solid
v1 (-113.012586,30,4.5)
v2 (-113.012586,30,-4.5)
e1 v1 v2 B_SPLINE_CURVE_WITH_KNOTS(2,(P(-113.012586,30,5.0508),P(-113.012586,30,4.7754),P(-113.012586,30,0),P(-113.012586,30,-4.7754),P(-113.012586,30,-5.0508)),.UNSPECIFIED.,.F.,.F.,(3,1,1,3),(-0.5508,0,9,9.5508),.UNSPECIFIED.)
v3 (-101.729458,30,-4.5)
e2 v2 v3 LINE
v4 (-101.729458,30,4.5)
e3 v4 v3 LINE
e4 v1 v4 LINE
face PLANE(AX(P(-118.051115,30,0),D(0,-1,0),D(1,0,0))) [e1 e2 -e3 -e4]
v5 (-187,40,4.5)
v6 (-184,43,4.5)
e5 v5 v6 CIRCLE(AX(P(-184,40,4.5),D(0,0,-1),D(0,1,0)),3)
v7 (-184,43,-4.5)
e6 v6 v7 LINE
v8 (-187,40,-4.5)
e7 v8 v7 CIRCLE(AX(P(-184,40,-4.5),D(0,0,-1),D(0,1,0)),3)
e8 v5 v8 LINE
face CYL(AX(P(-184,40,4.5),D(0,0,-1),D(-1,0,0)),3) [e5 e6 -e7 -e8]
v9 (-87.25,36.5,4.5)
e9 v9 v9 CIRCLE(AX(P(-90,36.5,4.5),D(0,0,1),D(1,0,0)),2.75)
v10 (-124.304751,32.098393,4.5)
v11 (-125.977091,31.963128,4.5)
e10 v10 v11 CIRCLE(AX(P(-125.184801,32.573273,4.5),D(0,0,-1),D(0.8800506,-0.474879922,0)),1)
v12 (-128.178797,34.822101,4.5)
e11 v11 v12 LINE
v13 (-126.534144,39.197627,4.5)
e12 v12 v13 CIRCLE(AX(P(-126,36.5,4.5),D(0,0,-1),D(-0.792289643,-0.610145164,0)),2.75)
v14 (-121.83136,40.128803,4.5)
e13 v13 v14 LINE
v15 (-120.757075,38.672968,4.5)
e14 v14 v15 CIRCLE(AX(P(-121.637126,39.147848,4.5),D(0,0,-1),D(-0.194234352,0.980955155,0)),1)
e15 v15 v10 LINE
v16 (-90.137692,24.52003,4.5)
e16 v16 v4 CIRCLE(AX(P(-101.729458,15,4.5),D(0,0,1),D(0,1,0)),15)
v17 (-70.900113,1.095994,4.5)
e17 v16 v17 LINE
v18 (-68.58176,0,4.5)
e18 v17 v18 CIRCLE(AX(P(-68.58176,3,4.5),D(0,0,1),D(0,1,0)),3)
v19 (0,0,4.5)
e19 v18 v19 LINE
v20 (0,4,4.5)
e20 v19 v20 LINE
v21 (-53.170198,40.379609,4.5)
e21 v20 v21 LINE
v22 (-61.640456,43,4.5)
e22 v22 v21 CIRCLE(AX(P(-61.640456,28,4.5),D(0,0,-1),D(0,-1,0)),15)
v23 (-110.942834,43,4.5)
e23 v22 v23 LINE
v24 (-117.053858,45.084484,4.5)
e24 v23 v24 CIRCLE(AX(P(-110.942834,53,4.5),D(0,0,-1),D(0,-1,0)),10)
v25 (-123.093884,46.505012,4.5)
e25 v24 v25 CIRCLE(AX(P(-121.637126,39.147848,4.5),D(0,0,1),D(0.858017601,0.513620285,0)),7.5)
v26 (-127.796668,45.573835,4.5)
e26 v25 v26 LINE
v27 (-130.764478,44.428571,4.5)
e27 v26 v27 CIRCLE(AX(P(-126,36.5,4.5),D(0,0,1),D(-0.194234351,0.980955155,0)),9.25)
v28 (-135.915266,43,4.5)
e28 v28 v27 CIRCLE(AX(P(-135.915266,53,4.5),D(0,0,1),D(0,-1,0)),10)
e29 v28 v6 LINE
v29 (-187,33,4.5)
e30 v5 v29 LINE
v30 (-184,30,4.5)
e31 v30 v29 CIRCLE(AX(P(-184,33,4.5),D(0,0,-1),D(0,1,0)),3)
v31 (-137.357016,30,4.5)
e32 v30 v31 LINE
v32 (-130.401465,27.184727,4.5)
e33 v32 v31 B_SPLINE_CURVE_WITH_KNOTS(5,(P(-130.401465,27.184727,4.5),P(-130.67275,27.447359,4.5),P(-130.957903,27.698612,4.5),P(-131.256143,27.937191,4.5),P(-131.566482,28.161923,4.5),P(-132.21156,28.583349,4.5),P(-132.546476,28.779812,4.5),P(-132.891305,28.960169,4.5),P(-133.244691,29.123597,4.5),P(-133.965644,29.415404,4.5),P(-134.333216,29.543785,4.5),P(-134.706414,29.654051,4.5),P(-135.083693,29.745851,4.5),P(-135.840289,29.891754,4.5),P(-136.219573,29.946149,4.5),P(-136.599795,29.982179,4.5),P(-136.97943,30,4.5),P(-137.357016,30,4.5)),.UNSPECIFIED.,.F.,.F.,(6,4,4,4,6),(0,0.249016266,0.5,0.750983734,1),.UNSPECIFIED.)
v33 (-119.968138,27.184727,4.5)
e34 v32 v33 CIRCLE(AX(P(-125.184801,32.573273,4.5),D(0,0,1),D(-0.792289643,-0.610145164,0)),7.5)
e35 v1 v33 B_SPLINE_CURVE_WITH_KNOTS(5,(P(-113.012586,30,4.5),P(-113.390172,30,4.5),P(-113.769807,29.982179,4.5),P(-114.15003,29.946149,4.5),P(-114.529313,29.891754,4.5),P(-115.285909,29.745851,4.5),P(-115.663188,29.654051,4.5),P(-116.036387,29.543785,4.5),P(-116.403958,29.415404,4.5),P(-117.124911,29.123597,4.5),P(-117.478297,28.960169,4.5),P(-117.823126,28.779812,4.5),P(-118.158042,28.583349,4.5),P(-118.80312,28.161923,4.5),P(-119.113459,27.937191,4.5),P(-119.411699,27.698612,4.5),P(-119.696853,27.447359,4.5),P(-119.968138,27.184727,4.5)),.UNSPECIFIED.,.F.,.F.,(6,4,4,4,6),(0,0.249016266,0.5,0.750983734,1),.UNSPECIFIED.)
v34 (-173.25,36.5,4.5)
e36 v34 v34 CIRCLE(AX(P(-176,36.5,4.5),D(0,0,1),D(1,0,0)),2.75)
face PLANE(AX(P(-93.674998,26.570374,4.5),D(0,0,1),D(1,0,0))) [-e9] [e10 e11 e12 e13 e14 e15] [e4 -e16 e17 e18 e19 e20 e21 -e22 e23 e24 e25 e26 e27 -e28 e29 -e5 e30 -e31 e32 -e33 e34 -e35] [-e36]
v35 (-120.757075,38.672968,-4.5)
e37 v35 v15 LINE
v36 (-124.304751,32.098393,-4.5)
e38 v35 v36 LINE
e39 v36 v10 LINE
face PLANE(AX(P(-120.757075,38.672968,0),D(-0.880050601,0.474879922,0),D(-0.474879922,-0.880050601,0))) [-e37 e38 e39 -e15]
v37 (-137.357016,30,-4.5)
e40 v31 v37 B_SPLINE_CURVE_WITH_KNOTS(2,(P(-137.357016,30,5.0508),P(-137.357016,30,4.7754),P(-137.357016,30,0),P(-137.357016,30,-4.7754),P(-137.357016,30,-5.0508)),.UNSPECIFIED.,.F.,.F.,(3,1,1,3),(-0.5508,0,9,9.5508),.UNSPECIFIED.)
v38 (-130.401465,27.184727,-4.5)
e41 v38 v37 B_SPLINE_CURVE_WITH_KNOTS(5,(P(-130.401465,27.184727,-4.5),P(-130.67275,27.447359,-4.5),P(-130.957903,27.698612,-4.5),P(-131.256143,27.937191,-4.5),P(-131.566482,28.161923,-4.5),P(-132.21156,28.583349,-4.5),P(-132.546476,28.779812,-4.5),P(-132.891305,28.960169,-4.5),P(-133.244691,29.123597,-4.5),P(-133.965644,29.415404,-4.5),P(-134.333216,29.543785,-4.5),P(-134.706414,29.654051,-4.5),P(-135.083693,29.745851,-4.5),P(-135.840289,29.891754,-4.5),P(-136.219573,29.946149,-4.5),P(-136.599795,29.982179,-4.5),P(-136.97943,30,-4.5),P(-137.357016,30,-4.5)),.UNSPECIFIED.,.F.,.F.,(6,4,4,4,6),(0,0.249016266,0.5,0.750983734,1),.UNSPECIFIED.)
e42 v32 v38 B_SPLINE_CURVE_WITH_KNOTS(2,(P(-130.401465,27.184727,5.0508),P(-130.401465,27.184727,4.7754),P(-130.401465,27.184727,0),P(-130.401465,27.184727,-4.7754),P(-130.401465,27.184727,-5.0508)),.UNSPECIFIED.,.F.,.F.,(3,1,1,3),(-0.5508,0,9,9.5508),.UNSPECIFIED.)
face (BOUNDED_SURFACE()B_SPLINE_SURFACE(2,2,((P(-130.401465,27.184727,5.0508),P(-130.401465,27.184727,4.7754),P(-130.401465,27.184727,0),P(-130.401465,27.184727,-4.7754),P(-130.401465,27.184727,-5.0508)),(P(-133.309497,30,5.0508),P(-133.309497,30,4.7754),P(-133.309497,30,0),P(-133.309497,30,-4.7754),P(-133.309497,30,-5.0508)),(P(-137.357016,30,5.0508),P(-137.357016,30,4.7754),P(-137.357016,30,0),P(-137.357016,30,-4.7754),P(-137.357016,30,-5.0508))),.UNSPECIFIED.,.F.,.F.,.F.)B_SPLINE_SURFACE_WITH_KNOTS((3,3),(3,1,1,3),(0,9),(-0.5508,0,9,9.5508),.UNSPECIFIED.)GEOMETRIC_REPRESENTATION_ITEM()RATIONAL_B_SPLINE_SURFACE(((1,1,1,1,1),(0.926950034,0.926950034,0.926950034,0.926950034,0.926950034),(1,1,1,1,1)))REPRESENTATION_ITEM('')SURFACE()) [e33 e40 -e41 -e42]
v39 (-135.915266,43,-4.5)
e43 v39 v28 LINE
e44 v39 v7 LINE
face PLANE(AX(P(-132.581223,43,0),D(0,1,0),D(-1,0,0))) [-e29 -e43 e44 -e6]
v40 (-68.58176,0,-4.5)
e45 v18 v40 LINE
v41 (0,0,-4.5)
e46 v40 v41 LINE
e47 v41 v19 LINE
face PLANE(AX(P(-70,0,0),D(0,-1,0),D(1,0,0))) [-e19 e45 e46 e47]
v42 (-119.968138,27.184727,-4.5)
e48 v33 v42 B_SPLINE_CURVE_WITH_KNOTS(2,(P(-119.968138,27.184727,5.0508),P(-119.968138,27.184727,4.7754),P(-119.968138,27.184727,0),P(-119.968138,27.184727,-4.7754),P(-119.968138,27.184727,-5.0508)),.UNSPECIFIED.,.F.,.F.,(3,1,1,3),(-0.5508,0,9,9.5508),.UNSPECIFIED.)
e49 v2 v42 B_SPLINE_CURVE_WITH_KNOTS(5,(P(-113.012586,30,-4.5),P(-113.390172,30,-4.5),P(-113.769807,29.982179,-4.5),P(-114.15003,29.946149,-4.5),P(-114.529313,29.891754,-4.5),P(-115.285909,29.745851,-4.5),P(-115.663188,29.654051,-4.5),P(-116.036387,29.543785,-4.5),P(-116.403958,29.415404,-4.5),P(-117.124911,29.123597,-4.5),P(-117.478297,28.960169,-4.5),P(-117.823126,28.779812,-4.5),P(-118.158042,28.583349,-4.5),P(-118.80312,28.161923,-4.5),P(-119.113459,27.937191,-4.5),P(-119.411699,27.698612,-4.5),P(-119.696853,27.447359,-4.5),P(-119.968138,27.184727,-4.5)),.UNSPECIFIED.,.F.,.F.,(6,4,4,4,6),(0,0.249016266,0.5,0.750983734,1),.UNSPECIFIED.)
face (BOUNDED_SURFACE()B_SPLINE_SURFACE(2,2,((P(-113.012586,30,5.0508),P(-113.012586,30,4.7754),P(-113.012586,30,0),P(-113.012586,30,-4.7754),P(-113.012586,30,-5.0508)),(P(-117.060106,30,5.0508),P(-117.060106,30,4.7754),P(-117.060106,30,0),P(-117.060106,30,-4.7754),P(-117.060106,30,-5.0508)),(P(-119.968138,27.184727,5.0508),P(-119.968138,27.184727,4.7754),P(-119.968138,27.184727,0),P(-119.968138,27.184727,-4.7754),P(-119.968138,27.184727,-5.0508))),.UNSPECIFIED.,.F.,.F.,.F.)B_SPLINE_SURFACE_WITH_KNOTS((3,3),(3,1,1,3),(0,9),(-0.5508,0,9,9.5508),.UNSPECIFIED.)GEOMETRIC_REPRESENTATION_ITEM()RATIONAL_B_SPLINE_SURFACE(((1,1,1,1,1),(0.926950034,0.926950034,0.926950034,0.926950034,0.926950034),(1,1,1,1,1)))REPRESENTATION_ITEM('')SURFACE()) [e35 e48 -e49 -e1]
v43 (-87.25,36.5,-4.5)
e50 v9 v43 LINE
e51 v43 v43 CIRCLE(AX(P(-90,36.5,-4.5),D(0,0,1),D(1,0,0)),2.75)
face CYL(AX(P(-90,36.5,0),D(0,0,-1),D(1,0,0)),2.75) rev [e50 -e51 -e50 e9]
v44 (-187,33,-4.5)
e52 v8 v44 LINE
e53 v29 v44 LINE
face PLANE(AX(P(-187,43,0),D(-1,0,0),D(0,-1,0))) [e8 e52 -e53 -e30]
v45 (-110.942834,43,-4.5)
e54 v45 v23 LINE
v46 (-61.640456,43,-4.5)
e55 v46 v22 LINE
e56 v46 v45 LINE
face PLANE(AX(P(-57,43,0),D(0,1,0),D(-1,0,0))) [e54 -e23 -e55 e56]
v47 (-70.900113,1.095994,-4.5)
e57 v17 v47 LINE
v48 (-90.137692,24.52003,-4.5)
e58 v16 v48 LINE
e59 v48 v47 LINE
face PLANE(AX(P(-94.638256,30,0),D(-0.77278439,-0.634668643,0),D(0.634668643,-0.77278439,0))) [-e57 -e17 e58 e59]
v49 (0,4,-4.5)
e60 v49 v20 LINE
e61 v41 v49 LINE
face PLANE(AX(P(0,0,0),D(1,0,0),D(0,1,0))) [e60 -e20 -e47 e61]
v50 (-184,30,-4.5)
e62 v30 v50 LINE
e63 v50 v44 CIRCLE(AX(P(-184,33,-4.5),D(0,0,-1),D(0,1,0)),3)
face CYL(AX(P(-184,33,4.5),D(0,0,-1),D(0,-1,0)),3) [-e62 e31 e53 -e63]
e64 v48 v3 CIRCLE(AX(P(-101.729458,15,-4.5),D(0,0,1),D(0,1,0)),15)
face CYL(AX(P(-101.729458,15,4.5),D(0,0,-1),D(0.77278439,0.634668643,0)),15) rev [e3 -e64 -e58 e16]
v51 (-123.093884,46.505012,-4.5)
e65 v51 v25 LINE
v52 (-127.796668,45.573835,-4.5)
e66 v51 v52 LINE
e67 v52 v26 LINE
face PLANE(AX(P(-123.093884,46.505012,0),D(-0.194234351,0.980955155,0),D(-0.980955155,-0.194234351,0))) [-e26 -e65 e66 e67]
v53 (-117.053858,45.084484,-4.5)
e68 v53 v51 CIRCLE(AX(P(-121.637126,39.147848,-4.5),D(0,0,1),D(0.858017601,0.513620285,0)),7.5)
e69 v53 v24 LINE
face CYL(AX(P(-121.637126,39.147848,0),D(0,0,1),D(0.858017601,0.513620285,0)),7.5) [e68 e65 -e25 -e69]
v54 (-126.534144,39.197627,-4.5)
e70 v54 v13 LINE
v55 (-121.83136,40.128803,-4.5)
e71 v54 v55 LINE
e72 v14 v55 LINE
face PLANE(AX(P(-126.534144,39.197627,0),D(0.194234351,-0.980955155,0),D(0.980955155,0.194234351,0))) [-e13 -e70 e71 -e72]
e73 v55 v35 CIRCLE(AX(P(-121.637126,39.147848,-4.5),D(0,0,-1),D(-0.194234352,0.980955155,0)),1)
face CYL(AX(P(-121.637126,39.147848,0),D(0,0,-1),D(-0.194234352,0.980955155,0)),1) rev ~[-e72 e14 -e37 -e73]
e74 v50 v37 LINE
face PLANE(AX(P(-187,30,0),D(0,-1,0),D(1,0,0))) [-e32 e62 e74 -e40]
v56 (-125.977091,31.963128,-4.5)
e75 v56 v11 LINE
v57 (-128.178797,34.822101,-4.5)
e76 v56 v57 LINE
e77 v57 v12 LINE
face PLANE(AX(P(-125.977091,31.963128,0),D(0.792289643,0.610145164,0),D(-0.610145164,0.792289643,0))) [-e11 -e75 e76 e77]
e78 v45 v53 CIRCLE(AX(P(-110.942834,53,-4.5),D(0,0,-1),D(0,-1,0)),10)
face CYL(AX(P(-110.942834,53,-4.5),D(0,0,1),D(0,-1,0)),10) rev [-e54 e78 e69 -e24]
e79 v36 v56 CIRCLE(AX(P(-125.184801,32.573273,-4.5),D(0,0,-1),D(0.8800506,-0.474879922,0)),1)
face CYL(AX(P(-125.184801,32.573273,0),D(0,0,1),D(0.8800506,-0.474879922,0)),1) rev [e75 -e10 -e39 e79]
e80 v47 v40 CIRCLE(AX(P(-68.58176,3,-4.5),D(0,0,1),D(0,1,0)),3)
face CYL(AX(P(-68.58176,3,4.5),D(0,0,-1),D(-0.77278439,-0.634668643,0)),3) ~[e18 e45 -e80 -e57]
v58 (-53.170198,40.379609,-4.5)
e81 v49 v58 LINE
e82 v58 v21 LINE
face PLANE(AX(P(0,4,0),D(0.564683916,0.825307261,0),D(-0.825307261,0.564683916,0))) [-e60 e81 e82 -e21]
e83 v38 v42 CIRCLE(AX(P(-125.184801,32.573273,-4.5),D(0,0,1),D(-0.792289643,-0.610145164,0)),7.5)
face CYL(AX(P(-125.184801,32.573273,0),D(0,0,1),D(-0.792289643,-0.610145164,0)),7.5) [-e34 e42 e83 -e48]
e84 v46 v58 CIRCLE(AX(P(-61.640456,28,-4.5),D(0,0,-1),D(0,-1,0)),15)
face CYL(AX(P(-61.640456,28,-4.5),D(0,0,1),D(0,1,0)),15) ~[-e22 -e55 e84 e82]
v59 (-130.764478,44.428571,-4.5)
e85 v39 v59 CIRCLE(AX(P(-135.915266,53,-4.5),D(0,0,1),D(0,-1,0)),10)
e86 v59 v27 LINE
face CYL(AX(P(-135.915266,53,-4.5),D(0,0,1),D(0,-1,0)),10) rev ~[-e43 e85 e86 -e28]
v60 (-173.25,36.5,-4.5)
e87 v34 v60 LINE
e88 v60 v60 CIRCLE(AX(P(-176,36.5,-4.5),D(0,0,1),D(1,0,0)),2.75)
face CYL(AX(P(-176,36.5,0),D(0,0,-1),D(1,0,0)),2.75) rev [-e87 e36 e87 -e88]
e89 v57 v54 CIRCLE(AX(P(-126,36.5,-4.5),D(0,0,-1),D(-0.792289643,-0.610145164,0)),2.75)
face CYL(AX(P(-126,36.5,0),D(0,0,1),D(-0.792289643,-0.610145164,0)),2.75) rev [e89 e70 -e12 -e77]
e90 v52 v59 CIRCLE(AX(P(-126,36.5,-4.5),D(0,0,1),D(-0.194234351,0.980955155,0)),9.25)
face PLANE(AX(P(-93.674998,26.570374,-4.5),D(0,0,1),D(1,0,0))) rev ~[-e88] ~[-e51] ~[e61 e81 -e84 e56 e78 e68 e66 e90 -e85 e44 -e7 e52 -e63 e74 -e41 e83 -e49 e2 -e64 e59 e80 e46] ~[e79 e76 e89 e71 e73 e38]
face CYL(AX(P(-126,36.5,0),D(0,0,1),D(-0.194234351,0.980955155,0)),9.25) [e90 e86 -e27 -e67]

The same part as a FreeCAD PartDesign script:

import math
import FreeCAD as App
import Part
import Sketcher
Q = App.Units.Quantity


def edges_at(feature, points):
    """Names of the edges that pass closest to the given points."""
    edges = feature.Shape.Edges
    near = lambda p: min(range(len(edges)), key=lambda i: edges[i].distToShape(Part.Vertex(*p))[0])
    return sorted({f"Edge{near(p) + 1}" for p in points})

doc = App.newDocument("Part")
params = doc.addObject("Spreadsheet::Sheet", "Params")
for row, (alias, value) in enumerate([
    ("sketch1_radius", "1 mm"),
    ("sketch1_diameter", "5.5 mm"),
    ("sketch1_radius2", "7.5 mm"),
    ("sketch1_width", "70 mm"),
    ("sketch1_height", "4 mm"),
    ("pad1_length", "9 mm"),
    ("fillet_radius", "15 mm"),
    ("fillet2_radius", "10 mm"),
    ("fillet3_radius", "3 mm"),
], start=1):
    params.set(f"A{row}", alias)
    params.set(f"B{row}", "=" + value)
    params.setAlias(f"B{row}", alias)

body = doc.addObject("PartDesign::Body", "Body")

# Sketch on XY plane
sketch1 = body.newObject("Sketcher::SketchObject", "Sketch")
sketch1.AttachmentSupport = (doc.getObject("XY_Plane"), [""])
sketch1.MapMode = "FlatFace"
sketch1.addGeometry(Part.LineSegment(App.Vector(-70, 0, 0), App.Vector(0, 0, 0)), False)
sketch1.addGeometry(Part.LineSegment(App.Vector(0, 0, 0), App.Vector(0, 4, 0)), False)
sketch1.addGeometry(Part.LineSegment(App.Vector(0, 4, 0), App.Vector(-57, 43, 0)), False)
sketch1.addGeometry(Part.LineSegment(App.Vector(-57, 43, 0), App.Vector(-115.2, 43, 0)), False)
sketch1.addGeometry(Part.ArcOfCircle(Part.Circle(App.Vector(-121.6, 39.1, 0), App.Vector(0, 0, 1), 7.5), math.radians(31), math.radians(101)), False)
sketch1.addGeometry(Part.LineSegment(App.Vector(-123.1, 46.5, 0), App.Vector(-127.8, 45.6, 0)), False)
sketch1.addGeometry(Part.ArcOfCircle(Part.Circle(App.Vector(-126, 36.5, 0), App.Vector(0, 0, 1), 9.3), math.radians(101), math.radians(135)), False)
sketch1.addGeometry(Part.LineSegment(App.Vector(-132.6, 43, 0), App.Vector(-187, 43, 0)), False)
sketch1.addGeometry(Part.LineSegment(App.Vector(-187, 43, 0), App.Vector(-187, 30, 0)), False)
sketch1.addGeometry(Part.LineSegment(App.Vector(-187, 30, 0), App.Vector(-132.7, 30, 0)), False)
sketch1.addGeometry(Part.LineSegment(App.Vector(-132.7, 30, 0), App.Vector(-131.1, 28, 0)), False)
sketch1.addGeometry(Part.ArcOfCircle(Part.Circle(App.Vector(-125.2, 32.6, 0), App.Vector(0, 0, 1), 7.5), math.radians(-142), math.radians(-28)), False)
sketch1.addGeometry(Part.LineSegment(App.Vector(-118.6, 29, 0), App.Vector(-118.1, 30, 0)), False)
sketch1.addGeometry(Part.LineSegment(App.Vector(-118.1, 30, 0), App.Vector(-94.6, 30, 0)), False)
sketch1.addGeometry(Part.LineSegment(App.Vector(-94.6, 30, 0), App.Vector(-70, 0, 0)), False)
sketch1.addGeometry(Part.Circle(App.Vector(-176, 36.5, 0), App.Vector(0, 0, 1), 2.8), False)
sketch1.addGeometry(Part.LineSegment(App.Vector(-126, 32, 0), App.Vector(-128.2, 34.8, 0)), False)
sketch1.addGeometry(Part.ArcOfCircle(Part.Circle(App.Vector(-126, 36.5, 0), App.Vector(0, 0, 1), 2.8), math.radians(101), math.radians(218)), False)
sketch1.addGeometry(Part.LineSegment(App.Vector(-126.5, 39.2, 0), App.Vector(-121.8, 40.1, 0)), False)
sketch1.addGeometry(Part.ArcOfCircle(Part.Circle(App.Vector(-121.6, 39.1, 0), App.Vector(0, 0, 1), 1), math.radians(-28), math.radians(101)), False)
sketch1.addGeometry(Part.LineSegment(App.Vector(-120.8, 38.7, 0), App.Vector(-124.3, 32.1, 0)), False)
sketch1.addGeometry(Part.ArcOfCircle(Part.Circle(App.Vector(-125.2, 32.6, 0), App.Vector(0, 0, 1), 1), math.radians(-142), math.radians(-28)), False)
sketch1.addGeometry(Part.Circle(App.Vector(-90, 36.5, 0), App.Vector(0, 0, 1), 2.8), False)
sketch1.addConstraint(Sketcher.Constraint("Coincident", 0, 2, 1, 1))
sketch1.addConstraint(Sketcher.Constraint("Coincident", 1, 2, 2, 1))
sketch1.addConstraint(Sketcher.Constraint("Coincident", 2, 2, 3, 1))
sketch1.addConstraint(Sketcher.Constraint("Coincident", 3, 2, 4, 1))
sketch1.addConstraint(Sketcher.Constraint("Tangent", 4, 2, 5, 1))
sketch1.addConstraint(Sketcher.Constraint("Tangent", 5, 2, 6, 1))
sketch1.addConstraint(Sketcher.Constraint("Coincident", 6, 2, 7, 1))
sketch1.addConstraint(Sketcher.Constraint("Coincident", 7, 2, 8, 1))
sketch1.addConstraint(Sketcher.Constraint("Coincident", 8, 2, 9, 1))
sketch1.addConstraint(Sketcher.Constraint("Coincident", 9, 2, 10, 1))
sketch1.addConstraint(Sketcher.Constraint("Tangent", 10, 2, 11, 1))
sketch1.addConstraint(Sketcher.Constraint("Tangent", 11, 2, 12, 1))
sketch1.addConstraint(Sketcher.Constraint("Coincident", 12, 2, 13, 1))
sketch1.addConstraint(Sketcher.Constraint("Coincident", 13, 2, 14, 1))
sketch1.addConstraint(Sketcher.Constraint("Coincident", 14, 2, 0, 1))
sketch1.addConstraint(Sketcher.Constraint("Tangent", 16, 2, 17, 2))
sketch1.addConstraint(Sketcher.Constraint("Tangent", 17, 1, 18, 1))
sketch1.addConstraint(Sketcher.Constraint("Tangent", 18, 2, 19, 2))
sketch1.addConstraint(Sketcher.Constraint("Tangent", 19, 1, 20, 1))
sketch1.addConstraint(Sketcher.Constraint("Tangent", 20, 2, 21, 2))
sketch1.addConstraint(Sketcher.Constraint("Tangent", 21, 1, 16, 1))
sketch1.addConstraint(Sketcher.Constraint("Horizontal", 0))
sketch1.addConstraint(Sketcher.Constraint("Vertical", 1))
sketch1.addConstraint(Sketcher.Constraint("Horizontal", 3))
sketch1.addConstraint(Sketcher.Constraint("Horizontal", 7))
sketch1.addConstraint(Sketcher.Constraint("Vertical", 8))
sketch1.addConstraint(Sketcher.Constraint("Horizontal", 9))
sketch1.addConstraint(Sketcher.Constraint("Horizontal", 13))
sketch1.addConstraint(Sketcher.Constraint("Coincident", 0, 2, -1, 1))
sketch1.addConstraint(Sketcher.Constraint("Coincident", 17, 3, 6, 3))
sketch1.addConstraint(Sketcher.Constraint("Coincident", 19, 3, 4, 3))
sketch1.addConstraint(Sketcher.Constraint("Coincident", 21, 3, 11, 3))
sketch1.addConstraint(Sketcher.Constraint("Equal", 4, 11))
sketch1.addConstraint(Sketcher.Constraint("Equal", 15, 17))
sketch1.addConstraint(Sketcher.Constraint("Equal", 19, 21))
sketch1.addConstraint(Sketcher.Constraint("Equal", 17, 22))
sketch1.addConstraint(Sketcher.Constraint("Parallel", 10, 16))
sketch1.addConstraint(Sketcher.Constraint("Parallel", 5, 18))
sketch1.addConstraint(Sketcher.Constraint("Parallel", 12, 20))
sketch1.addConstraint(Sketcher.Constraint("Horizontal", 6, 3, 15, 3))
sketch1.addConstraint(Sketcher.Constraint("Horizontal", 17, 3, 22, 3))
sketch1.addConstraint(Sketcher.Constraint("Horizontal", 3, 2, 6, 2))
sketch1.addConstraint(Sketcher.Constraint("Horizontal", 9, 2, 12, 2))
sketch1.addConstraint(Sketcher.Constraint("Radius", 19, 1.0))
sketch1.addConstraint(Sketcher.Constraint("Diameter", 15, 5.5))
sketch1.addConstraint(Sketcher.Constraint("Radius", 4, 7.5))
sketch1.addConstraint(Sketcher.Constraint("DistanceX", 0, 1, 0, 2, 70.0))
sketch1.addConstraint(Sketcher.Constraint("DistanceY", 1, 1, 1, 2, 4.0))
sketch1.addConstraint(Sketcher.Constraint("DistanceY", 8, 2, 8, 1, 13.0))
sketch1.addConstraint(Sketcher.Constraint("DistanceX", 6, 3, -1, 1, 126.0))
sketch1.addConstraint(Sketcher.Constraint("DistanceX", 15, 3, -1, 1, 176.0))
sketch1.addConstraint(Sketcher.Constraint("DistanceX", 22, 3, -1, 1, 90.0))
sketch1.addConstraint(Sketcher.Constraint("DistanceX", 2, 2, -1, 1, 57.0))
sketch1.addConstraint(Sketcher.Constraint("DistanceY", -1, 1, 2, 2, 43.0))
sketch1.addConstraint(Sketcher.Constraint("DistanceX", 7, 2, -1, 1, 187.0))
sketch1.addConstraint(Sketcher.Constraint("Angle", 5, Q("-168.8 deg")))
sketch1.addConstraint(Sketcher.Constraint("Angle", 10, Q("-52.4 deg")))
sketch1.addConstraint(Sketcher.Constraint("DistanceY", -1, 1, 6, 3, 36.5))
sketch1.addConstraint(Sketcher.Constraint("DistanceX", 13, 1, 13, 2, 23.41286))
sketch1.addConstraint(Sketcher.Constraint("DistanceX", 11, 3, -1, 1, 125.184801))
sketch1.addConstraint(Sketcher.Constraint("DistanceY", 11, 2, 11, 3, 3.561599))
sketch1.setExpression("Constraints[43]", "Params.sketch1_radius")
sketch1.setExpression("Constraints[44]", "Params.sketch1_diameter")
sketch1.setExpression("Constraints[45]", "Params.sketch1_radius2")
sketch1.setExpression("Constraints[46]", "Params.sketch1_width")
sketch1.setExpression("Constraints[47]", "Params.sketch1_height")
pad1 = body.newObject("PartDesign::Pad", "Pad")
pad1.Profile = sketch1
pad1.setExpression("Length", "Params.pad1_length")
pad1.Midplane = True
doc.recompute()

fillet = body.newObject("PartDesign::Fillet", "Fillet")
fillet.Base = (pad1, edges_at(pad1, [(-57, 43, 0), (-94.638, 30, 0)]))
fillet.setExpression("Radius", "Params.fillet_radius")
doc.recompute()

fillet2 = body.newObject("PartDesign::Fillet", "Fillet001")
fillet2.Base = (fillet, edges_at(fillet, [
    (-115.202, 43, 0),
    (-132.581, 43, 0),
    (-132.669, 30, 0),
    (-118.051, 30, 0),
]))
fillet2.setExpression("Radius", "Params.fillet2_radius")
doc.recompute()

fillet3 = body.newObject("PartDesign::Fillet", "Fillet002")
fillet3.Base = (fillet2, edges_at(fillet2, [(-70, 0, 0), (-187, 30, 0), (-187, 43, 0)]))
fillet3.setExpression("Radius", "Params.fillet3_radius")

doc.recompute()
